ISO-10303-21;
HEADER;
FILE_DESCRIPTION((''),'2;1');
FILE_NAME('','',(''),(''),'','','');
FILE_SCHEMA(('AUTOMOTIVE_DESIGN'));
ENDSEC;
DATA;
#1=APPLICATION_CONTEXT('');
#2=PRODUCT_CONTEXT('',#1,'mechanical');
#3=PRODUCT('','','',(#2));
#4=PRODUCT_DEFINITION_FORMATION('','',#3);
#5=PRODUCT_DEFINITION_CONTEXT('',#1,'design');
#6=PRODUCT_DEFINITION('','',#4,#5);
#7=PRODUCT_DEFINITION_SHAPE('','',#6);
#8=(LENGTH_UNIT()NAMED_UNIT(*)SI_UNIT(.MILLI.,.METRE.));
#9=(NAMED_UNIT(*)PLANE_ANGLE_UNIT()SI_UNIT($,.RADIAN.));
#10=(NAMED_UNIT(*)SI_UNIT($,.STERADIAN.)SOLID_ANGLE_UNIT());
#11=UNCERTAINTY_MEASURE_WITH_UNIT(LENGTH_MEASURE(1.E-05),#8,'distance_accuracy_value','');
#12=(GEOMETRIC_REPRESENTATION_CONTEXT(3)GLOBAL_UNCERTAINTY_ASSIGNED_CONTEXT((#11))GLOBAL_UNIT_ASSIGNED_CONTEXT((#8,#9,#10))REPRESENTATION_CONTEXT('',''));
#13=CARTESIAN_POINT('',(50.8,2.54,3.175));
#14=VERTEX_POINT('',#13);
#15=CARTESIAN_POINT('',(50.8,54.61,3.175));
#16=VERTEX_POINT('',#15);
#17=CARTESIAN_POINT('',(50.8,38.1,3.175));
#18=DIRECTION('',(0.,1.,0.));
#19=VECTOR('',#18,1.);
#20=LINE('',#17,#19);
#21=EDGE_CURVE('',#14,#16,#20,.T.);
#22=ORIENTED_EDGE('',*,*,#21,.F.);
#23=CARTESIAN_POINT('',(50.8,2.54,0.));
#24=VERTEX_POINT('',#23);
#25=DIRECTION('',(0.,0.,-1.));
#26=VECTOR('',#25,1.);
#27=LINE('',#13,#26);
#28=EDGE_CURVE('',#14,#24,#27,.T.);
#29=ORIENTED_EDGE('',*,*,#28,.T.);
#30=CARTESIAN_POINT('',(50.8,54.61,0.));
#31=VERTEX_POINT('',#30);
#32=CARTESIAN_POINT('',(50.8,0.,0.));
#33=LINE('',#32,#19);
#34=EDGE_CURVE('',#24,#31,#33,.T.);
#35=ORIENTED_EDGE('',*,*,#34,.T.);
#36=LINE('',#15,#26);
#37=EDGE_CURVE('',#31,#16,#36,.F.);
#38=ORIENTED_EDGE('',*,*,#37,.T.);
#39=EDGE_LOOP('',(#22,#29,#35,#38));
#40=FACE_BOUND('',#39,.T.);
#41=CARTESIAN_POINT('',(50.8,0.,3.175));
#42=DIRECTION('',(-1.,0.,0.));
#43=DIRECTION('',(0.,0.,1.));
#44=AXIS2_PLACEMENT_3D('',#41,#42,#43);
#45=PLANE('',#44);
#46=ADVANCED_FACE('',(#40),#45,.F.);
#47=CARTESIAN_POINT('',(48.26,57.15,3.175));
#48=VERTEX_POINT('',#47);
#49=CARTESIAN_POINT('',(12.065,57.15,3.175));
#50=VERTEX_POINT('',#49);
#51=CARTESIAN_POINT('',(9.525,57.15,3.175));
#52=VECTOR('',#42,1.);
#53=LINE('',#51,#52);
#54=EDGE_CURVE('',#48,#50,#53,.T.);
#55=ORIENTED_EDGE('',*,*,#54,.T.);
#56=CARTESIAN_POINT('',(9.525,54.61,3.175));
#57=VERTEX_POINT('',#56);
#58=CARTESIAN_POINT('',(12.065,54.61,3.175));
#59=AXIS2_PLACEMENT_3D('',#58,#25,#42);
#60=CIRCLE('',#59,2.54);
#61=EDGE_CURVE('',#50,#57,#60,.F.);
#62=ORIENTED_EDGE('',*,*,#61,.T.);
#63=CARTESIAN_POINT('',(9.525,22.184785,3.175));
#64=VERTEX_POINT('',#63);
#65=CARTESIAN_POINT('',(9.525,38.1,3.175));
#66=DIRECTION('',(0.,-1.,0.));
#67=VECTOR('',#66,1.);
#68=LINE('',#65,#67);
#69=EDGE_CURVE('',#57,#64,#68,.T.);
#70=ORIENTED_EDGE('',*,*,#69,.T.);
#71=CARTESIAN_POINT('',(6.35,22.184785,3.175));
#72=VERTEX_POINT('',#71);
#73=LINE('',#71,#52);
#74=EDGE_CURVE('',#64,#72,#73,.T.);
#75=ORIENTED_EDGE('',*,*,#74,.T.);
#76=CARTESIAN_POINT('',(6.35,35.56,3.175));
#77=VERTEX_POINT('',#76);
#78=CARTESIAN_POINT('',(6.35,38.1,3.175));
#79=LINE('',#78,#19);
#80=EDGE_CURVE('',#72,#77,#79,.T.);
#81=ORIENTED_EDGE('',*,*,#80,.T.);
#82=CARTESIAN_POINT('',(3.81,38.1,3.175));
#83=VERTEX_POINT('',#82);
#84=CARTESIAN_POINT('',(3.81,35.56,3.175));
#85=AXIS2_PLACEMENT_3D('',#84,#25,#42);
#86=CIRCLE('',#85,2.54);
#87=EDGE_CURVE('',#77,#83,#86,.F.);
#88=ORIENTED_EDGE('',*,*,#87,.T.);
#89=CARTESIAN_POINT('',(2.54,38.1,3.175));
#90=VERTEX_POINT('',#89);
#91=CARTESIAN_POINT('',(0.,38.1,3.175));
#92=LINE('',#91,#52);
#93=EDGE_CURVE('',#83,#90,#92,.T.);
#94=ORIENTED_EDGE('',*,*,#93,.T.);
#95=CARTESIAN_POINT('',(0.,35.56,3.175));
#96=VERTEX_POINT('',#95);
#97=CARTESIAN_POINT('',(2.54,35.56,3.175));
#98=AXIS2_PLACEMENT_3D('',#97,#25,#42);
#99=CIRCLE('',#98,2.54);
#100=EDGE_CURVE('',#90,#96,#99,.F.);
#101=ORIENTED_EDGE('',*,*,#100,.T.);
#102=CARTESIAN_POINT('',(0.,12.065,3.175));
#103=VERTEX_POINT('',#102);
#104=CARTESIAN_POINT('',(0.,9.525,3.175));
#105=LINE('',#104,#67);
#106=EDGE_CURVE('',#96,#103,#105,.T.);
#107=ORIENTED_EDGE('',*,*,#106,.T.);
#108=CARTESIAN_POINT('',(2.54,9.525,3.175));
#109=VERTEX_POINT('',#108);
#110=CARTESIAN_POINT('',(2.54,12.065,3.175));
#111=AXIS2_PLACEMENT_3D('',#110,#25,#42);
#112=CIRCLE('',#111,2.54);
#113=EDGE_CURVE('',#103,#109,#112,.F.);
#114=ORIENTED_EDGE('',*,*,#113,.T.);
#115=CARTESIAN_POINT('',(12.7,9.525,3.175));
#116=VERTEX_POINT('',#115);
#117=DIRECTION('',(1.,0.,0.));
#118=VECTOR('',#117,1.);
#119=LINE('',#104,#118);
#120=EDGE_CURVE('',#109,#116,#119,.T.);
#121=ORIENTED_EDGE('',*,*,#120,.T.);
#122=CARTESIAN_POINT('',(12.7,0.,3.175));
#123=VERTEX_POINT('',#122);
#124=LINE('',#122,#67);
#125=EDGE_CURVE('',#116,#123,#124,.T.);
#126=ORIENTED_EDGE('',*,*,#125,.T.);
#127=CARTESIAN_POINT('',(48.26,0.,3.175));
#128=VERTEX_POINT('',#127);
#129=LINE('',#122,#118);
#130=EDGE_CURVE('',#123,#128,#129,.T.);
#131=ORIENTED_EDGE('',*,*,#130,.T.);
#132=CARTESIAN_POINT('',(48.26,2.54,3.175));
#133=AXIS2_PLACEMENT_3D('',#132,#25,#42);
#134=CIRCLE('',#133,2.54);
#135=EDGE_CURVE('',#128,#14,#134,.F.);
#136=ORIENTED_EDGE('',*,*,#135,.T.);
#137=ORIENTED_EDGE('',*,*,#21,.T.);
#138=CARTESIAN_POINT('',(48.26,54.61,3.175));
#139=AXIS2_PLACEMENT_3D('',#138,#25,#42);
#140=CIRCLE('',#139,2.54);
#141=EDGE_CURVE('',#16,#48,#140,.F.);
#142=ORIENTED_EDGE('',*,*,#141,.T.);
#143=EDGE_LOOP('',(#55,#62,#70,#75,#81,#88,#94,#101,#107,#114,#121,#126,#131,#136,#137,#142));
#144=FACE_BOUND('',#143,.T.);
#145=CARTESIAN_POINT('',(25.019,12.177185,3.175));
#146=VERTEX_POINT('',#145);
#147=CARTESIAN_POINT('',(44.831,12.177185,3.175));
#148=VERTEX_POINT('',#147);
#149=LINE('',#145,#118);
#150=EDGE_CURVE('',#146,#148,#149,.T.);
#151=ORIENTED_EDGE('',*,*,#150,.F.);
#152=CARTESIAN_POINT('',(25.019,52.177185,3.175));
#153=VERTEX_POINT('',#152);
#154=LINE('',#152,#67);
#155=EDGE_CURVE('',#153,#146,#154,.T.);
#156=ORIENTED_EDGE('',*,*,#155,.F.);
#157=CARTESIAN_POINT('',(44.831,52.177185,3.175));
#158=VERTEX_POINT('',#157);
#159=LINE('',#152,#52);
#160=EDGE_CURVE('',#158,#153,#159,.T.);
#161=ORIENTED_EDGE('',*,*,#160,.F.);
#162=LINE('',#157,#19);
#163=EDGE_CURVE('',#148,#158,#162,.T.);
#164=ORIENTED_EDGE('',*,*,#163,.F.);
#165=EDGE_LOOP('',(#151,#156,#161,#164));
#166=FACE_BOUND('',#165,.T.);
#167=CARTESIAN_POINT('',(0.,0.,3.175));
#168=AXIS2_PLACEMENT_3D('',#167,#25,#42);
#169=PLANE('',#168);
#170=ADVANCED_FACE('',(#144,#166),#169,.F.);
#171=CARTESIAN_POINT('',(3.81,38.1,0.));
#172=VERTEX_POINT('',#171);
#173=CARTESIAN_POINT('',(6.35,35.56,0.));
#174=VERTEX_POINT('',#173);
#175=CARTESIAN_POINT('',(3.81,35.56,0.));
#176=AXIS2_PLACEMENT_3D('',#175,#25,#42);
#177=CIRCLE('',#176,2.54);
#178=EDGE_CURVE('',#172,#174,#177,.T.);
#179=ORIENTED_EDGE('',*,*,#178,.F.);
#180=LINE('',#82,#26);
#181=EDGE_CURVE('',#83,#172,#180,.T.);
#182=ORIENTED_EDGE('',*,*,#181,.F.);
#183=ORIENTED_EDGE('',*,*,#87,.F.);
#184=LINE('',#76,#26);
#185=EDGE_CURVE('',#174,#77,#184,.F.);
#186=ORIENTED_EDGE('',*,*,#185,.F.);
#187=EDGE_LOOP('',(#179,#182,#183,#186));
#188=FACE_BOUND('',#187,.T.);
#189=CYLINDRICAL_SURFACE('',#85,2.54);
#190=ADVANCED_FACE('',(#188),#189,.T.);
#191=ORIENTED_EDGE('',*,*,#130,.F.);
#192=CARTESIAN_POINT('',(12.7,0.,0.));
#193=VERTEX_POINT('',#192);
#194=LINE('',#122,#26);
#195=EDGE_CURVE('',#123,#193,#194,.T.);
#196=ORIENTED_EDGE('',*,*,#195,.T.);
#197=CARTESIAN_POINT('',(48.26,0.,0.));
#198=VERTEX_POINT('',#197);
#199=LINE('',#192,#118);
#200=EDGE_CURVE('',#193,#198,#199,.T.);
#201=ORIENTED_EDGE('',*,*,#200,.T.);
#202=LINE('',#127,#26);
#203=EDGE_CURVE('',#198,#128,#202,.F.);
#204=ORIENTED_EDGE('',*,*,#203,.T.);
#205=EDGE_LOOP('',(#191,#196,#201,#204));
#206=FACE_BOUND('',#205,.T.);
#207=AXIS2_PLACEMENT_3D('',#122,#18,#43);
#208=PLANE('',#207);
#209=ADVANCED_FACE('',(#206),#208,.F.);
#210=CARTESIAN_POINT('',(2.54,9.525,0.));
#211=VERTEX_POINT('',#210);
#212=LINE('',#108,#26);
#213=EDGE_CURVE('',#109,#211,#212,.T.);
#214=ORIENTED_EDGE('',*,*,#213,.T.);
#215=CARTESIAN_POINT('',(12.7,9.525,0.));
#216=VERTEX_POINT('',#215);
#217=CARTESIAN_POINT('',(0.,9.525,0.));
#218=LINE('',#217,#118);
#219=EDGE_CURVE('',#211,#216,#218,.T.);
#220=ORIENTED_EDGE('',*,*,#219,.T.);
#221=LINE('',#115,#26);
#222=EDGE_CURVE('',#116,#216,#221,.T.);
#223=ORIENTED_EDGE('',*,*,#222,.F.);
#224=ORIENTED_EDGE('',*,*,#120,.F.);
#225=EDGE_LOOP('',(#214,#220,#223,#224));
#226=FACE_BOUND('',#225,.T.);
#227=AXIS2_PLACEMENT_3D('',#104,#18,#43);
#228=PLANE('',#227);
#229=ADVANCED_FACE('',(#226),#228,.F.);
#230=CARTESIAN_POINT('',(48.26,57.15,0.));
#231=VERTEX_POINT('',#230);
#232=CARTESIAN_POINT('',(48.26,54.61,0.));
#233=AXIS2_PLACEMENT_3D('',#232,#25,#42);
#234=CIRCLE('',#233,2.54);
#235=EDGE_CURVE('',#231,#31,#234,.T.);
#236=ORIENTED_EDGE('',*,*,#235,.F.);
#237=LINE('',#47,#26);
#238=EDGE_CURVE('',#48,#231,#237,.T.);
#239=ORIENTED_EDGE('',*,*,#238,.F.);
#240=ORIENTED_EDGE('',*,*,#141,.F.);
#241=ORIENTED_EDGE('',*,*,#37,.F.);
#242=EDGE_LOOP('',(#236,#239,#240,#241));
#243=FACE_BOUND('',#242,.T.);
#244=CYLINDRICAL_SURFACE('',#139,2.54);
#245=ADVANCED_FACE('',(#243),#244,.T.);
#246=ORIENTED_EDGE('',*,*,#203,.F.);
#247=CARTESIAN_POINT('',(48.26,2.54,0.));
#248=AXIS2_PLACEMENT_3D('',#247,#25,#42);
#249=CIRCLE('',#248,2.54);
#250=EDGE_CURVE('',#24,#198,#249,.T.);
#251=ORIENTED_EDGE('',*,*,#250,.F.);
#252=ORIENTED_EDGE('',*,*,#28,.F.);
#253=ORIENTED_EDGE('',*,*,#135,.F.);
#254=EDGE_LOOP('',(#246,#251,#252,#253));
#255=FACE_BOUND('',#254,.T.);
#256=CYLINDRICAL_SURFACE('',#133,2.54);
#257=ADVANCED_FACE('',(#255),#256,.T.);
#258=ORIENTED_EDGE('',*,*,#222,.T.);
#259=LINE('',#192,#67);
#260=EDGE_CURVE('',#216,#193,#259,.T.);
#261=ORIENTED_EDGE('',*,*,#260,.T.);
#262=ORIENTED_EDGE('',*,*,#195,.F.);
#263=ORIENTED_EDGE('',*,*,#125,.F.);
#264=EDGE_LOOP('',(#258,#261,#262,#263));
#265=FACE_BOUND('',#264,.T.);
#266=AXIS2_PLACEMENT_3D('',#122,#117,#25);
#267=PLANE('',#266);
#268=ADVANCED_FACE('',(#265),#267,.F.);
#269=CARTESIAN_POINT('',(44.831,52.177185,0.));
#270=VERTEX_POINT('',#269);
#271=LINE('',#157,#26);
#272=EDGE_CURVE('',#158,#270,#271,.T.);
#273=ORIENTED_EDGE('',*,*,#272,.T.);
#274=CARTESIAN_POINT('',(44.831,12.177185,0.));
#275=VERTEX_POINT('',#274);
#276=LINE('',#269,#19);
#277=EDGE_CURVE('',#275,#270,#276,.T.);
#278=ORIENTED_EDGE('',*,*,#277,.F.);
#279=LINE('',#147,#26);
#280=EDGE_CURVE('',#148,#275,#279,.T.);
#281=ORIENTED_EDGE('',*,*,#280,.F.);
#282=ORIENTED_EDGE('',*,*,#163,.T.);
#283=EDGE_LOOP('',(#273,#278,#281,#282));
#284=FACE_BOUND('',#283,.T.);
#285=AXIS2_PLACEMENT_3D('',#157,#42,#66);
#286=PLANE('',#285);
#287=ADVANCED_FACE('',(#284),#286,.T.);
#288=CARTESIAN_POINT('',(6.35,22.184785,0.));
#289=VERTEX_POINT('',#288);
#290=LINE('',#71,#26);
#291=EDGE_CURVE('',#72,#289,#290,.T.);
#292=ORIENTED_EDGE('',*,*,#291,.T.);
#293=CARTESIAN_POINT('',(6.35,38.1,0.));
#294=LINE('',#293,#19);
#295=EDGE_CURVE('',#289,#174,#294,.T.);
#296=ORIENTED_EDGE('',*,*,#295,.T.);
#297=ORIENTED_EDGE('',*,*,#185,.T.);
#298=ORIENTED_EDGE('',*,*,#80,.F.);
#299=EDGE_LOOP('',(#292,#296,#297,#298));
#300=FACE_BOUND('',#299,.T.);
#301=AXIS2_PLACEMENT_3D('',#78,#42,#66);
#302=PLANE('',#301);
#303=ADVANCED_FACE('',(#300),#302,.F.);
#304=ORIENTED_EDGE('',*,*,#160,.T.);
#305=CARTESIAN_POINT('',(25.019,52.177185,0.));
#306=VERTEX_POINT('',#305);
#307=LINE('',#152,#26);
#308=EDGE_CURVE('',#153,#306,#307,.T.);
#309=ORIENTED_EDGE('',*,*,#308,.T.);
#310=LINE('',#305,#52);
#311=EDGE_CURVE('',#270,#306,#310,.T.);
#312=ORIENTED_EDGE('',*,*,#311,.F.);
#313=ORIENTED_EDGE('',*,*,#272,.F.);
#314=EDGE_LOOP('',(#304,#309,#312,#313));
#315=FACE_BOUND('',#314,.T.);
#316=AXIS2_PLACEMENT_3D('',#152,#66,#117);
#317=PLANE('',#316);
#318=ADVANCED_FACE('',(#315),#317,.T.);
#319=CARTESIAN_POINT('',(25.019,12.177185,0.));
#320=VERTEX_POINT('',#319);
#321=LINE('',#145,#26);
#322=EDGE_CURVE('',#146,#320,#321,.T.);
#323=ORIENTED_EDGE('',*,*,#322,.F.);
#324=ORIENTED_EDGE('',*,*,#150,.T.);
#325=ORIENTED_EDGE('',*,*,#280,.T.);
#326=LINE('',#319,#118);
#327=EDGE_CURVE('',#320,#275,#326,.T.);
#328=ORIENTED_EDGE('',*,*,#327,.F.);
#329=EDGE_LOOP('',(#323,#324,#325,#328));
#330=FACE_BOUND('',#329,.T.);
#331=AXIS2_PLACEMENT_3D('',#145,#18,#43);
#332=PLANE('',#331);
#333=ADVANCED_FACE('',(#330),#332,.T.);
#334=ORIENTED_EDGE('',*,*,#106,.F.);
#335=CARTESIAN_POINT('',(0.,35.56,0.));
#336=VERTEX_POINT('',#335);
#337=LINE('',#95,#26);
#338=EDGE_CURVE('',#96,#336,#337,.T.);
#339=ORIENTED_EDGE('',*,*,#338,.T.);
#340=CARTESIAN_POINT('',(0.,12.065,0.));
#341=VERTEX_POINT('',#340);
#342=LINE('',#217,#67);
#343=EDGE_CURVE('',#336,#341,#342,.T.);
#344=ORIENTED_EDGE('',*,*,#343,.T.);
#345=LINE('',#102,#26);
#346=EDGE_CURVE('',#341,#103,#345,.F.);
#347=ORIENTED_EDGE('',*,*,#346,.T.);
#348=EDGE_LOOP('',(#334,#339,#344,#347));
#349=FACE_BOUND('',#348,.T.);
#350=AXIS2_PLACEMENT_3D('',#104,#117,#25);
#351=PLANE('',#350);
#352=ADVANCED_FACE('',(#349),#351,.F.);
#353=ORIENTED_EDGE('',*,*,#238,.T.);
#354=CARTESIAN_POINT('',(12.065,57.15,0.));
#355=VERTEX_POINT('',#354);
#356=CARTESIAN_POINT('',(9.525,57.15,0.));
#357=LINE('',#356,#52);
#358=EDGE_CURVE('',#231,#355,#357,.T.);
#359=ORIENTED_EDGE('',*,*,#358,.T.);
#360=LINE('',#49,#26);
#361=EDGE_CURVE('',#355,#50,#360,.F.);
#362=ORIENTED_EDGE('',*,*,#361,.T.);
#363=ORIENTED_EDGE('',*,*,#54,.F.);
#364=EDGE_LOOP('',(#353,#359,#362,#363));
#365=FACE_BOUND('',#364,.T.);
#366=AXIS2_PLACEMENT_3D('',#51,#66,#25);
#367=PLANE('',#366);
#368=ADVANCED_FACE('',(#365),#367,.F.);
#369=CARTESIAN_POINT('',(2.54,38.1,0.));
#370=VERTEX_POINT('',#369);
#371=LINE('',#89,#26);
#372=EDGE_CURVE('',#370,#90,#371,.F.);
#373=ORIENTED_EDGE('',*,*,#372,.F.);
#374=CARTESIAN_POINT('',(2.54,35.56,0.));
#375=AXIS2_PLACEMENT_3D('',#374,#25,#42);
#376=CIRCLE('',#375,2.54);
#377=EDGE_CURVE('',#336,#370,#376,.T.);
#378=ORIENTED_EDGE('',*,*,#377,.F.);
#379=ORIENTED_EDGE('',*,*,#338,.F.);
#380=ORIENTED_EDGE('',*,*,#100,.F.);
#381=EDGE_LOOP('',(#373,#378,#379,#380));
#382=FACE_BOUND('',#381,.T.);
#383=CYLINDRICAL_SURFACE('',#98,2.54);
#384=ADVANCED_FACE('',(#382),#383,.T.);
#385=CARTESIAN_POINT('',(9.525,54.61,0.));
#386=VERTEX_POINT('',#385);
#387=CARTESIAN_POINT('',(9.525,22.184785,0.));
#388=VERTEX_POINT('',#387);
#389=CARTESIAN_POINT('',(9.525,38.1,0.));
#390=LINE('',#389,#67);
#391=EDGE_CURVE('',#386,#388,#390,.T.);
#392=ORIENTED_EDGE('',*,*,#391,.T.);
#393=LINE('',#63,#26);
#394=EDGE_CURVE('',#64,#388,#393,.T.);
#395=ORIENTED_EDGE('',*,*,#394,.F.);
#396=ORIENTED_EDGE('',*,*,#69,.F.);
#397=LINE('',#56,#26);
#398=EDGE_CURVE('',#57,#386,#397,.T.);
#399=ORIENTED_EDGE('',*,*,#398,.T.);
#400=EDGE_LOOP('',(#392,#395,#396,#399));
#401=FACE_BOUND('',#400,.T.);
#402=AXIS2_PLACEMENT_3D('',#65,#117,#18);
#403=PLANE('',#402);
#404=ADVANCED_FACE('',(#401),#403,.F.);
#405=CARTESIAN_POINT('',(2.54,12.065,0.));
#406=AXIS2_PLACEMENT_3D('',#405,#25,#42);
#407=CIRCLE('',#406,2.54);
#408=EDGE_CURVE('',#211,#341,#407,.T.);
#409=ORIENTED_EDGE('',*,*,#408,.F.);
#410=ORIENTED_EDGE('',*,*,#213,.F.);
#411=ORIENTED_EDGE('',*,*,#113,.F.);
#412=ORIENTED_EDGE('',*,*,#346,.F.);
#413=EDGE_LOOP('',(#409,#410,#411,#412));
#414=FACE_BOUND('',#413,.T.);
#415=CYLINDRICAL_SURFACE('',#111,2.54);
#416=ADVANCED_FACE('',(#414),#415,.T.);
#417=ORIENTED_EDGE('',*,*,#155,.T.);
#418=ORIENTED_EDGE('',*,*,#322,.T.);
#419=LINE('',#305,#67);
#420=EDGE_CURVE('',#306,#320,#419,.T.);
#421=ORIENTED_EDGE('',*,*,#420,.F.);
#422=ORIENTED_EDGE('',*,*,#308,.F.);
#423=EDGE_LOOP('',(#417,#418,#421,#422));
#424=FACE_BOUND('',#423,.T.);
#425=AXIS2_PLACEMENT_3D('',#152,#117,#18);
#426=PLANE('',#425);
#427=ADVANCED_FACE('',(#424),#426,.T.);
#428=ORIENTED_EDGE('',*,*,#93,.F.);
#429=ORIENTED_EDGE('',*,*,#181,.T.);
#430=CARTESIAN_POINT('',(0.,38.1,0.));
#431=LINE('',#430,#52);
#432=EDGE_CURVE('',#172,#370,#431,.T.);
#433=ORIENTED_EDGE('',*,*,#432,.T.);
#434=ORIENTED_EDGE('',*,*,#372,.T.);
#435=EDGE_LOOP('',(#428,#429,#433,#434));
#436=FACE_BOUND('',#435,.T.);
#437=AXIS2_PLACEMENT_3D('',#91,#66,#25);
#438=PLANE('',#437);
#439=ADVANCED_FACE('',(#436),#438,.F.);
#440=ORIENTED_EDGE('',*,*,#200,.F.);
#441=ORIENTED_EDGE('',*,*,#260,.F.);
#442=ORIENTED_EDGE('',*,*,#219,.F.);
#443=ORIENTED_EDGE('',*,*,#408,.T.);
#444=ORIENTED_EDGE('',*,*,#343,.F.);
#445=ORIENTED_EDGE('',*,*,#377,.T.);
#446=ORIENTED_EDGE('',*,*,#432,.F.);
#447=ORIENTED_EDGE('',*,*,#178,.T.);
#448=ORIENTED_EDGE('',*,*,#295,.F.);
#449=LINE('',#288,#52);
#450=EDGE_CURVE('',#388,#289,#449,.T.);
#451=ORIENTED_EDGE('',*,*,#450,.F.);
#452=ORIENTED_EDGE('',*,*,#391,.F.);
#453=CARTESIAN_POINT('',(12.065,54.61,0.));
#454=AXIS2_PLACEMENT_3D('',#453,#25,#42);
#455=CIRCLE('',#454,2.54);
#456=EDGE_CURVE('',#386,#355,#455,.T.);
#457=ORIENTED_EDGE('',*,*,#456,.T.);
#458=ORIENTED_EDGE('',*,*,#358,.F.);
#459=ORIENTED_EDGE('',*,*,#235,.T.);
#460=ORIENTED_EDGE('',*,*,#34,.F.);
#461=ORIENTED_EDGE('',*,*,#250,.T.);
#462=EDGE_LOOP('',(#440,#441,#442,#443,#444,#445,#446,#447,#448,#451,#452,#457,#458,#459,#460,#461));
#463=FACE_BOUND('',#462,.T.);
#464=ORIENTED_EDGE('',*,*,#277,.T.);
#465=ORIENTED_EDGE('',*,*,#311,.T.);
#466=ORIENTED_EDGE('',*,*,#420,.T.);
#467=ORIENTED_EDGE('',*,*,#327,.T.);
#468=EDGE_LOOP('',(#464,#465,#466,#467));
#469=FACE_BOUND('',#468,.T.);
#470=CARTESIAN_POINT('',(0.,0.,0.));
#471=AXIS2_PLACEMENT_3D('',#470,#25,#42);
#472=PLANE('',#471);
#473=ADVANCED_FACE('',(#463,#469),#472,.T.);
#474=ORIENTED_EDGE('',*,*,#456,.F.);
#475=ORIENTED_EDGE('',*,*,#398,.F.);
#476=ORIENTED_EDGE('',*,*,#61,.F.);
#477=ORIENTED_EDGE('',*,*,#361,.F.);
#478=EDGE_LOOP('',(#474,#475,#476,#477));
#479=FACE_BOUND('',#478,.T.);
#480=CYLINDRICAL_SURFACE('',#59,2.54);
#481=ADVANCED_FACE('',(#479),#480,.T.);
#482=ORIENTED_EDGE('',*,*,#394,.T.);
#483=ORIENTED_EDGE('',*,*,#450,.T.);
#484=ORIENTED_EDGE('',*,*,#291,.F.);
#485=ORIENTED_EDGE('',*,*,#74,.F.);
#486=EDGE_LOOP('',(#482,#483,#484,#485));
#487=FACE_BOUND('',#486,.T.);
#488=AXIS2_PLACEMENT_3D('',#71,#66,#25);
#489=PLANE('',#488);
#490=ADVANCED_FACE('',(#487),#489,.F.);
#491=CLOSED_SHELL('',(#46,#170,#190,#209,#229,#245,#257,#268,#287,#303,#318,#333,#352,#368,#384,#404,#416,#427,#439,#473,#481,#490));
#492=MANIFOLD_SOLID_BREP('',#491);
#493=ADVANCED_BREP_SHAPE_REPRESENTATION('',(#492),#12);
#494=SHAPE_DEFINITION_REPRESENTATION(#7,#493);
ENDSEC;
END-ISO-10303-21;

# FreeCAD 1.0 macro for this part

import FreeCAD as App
import Part
import Sketcher
Q = App.Units.Quantity


def edges_at(feature, points):
    """Names of the edges that pass closest to the given points."""
    edges = feature.Shape.Edges
    near = lambda p: min(range(len(edges)), key=lambda i: edges[i].distToShape(Part.Vertex(*p))[0])
    return sorted({f"Edge{near(p) + 1}" for p in points})


def add_polygon(sketch, points):
    """Adds a closed chain of lines whose ends are joined by coincident constraints."""
    first, n = sketch.GeometryCount, len(points)
    for a, b in zip(points, points[1:] + points[:1]):
        sketch.addGeometry(Part.LineSegment(App.Vector(*a, 0), App.Vector(*b, 0)), False)
    for i in range(n):
        sketch.addConstraint(Sketcher.Constraint("Coincident", first + i, 2, first + (i + 1) % n, 1))

doc = App.newDocument("Part")
body = doc.addObject("PartDesign::Body", "Body")

sketch1 = doc.addObject("Sketcher::SketchObject", "Sketch")
body.addObject(sketch1)
sketch1.AttachmentSupport = (doc.XY_Plane, [""])
sketch1.MapMode = "FlatFace"
add_polygon(sketch1, [(12.7, 0), (50.8, 0), (50.8, 57.1), (9.5, 57.1), (9.5, 22.2), (6.3, 22.2), (6.3, 38.1), (0, 38.1), (0, 9.5), (12.7, 9.5)])
add_polygon(sketch1, [(44.8, 12.2), (25, 12.2), (25, 52.2), (44.8, 52.2)])
sketch1.addConstraint([
    Sketcher.Constraint("Horizontal", 0),
    Sketcher.Constraint("Vertical", 1),
    Sketcher.Constraint("Horizontal", 2),
    Sketcher.Constraint("Vertical", 3),
    Sketcher.Constraint("Horizontal", 4),
    Sketcher.Constraint("Vertical", 5),
    Sketcher.Constraint("Horizontal", 6),
    Sketcher.Constraint("Vertical", 7),
    Sketcher.Constraint("Horizontal", 8),
    Sketcher.Constraint("Vertical", 9),
    Sketcher.Constraint("Horizontal", 10),
    Sketcher.Constraint("Vertical", 11),
    Sketcher.Constraint("Horizontal", 12),
    Sketcher.Constraint("Vertical", 13),
    Sketcher.Constraint("PointOnObject", 0, 2, -1),
    Sketcher.Constraint("PointOnObject", 6, 2, -2),
    Sketcher.Constraint("DistanceX", 0, 1, 0, 2, Q("1.5 in")),
    Sketcher.Constraint("DistanceX", 8, 1, 8, 2, Q("0.5 in")),
    Sketcher.Constraint("DistanceX", 6, 2, 6, 1, Q("0.25 in")),
    Sketcher.Constraint("DistanceX", 10, 2, 10, 1, Q("0.78 in")),
    Sketcher.Constraint("DistanceY", 1, 1, 1, 2, Q("2.25 in")),
    Sketcher.Constraint("DistanceY", -1, 1, 5, 2, Q("1.5 in")),
    Sketcher.Constraint("DistanceX", 2, 2, 2, 1, Q("1.625 in")),
    Sketcher.Constraint("DistanceY", 7, 2, 7, 1, Q("1.125 in")),
    Sketcher.Constraint("DistanceX", 3, 2, 10, 2, Q("0.61 in")),
    Sketcher.Constraint("DistanceY", 10, 2, 3, 2, Q("0.394 in")),
    Sketcher.Constraint("DistanceY", 11, 1, 11, 2, 40.0),
    Sketcher.Constraint("DistanceY", 3, 2, 3, 1, 34.965215),
])
pad1 = doc.addObject("PartDesign::Pad", "Pad")
body.addObject(pad1)
pad1.Profile = sketch1
pad1.Length = Q("0.125 in")
doc.recompute()

fillet = doc.addObject("PartDesign::Fillet", "Fillet")
body.addObject(fillet)
fillet.Base = (pad1, edges_at(pad1, [
    (50.8, 0, 1.587),
    (0, 9.525, 1.587),
    (0, 38.1, 1.587),
    (6.35, 38.1, 1.587),
    (9.525, 57.15, 1.587),
    (50.8, 57.15, 1.587),
]))
fillet.Radius = Q("0.1 in")

doc.recompute()
